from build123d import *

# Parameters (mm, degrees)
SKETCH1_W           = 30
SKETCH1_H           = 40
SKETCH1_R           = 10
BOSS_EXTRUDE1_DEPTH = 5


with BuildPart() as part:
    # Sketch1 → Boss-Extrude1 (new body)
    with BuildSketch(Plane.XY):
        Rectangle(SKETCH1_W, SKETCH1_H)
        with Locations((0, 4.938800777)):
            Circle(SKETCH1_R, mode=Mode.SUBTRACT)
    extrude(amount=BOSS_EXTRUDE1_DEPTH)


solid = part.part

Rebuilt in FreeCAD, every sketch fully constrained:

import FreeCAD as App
import Part
import Sketcher
from FreeCAD import Vector
Q = App.Units.Quantity


def add_polygon(sketch, points):
    """Adds a closed chain of lines whose ends are joined by coincident constraints."""
    first, n = sketch.GeometryCount, len(points)
    for a, b in zip(points, points[1:] + points[:1]):
        sketch.addGeometry(Part.LineSegment(App.Vector(*a, 0), App.Vector(*b, 0)), False)
    for i in range(n):
        sketch.addConstraint(Sketcher.Constraint("Coincident", first + i, 2, first + (i + 1) % n, 1))

doc = App.newDocument("Part")
body = doc.addObject("PartDesign::Body", "Body")

sketch1 = body.newObject("Sketcher::SketchObject", "Sketch")
sketch1.AttachmentSupport = (doc.getObject("XY_Plane"), [""])
sketch1.MapMode = "FlatFace"
add_polygon(sketch1, [(-15, 20), (-15, -20), (15, -20), (15, 20)])
sketch1.addGeometry(Part.Circle(Vector(0, 4.938801, 0), Vector(0, 0, 1), 10), False)
sketch1.addConstraint(Sketcher.Constraint("Vertical", 0))
sketch1.addConstraint(Sketcher.Constraint("Horizontal", 1))
sketch1.addConstraint(Sketcher.Constraint("Vertical", 2))
sketch1.addConstraint(Sketcher.Constraint("Horizontal", 3))
sketch1.addConstraint(Sketcher.Constraint("Symmetric", 0, 2, 2, 2, -1, 1))
sketch1.addConstraint(Sketcher.Constraint("PointOnObject", 4, 3, -2))
sketch1.addConstraint(Sketcher.Constraint("Diameter", 4, Q("20 mm")))
sketch1.addConstraint(Sketcher.Constraint("DistanceX", 1, 1, 1, 2, Q("30 mm")))
sketch1.addConstraint(Sketcher.Constraint("DistanceY", 0, 2, 0, 1, Q("40 mm")))
sketch1.addConstraint(Sketcher.Constraint("DistanceY", -1, 1, 4, 3, Q("4.938801 mm")))
pad1 = body.newObject("PartDesign::Pad", "Pad")
pad1.Profile = sketch1
pad1.Length = 5

doc.recompute()
